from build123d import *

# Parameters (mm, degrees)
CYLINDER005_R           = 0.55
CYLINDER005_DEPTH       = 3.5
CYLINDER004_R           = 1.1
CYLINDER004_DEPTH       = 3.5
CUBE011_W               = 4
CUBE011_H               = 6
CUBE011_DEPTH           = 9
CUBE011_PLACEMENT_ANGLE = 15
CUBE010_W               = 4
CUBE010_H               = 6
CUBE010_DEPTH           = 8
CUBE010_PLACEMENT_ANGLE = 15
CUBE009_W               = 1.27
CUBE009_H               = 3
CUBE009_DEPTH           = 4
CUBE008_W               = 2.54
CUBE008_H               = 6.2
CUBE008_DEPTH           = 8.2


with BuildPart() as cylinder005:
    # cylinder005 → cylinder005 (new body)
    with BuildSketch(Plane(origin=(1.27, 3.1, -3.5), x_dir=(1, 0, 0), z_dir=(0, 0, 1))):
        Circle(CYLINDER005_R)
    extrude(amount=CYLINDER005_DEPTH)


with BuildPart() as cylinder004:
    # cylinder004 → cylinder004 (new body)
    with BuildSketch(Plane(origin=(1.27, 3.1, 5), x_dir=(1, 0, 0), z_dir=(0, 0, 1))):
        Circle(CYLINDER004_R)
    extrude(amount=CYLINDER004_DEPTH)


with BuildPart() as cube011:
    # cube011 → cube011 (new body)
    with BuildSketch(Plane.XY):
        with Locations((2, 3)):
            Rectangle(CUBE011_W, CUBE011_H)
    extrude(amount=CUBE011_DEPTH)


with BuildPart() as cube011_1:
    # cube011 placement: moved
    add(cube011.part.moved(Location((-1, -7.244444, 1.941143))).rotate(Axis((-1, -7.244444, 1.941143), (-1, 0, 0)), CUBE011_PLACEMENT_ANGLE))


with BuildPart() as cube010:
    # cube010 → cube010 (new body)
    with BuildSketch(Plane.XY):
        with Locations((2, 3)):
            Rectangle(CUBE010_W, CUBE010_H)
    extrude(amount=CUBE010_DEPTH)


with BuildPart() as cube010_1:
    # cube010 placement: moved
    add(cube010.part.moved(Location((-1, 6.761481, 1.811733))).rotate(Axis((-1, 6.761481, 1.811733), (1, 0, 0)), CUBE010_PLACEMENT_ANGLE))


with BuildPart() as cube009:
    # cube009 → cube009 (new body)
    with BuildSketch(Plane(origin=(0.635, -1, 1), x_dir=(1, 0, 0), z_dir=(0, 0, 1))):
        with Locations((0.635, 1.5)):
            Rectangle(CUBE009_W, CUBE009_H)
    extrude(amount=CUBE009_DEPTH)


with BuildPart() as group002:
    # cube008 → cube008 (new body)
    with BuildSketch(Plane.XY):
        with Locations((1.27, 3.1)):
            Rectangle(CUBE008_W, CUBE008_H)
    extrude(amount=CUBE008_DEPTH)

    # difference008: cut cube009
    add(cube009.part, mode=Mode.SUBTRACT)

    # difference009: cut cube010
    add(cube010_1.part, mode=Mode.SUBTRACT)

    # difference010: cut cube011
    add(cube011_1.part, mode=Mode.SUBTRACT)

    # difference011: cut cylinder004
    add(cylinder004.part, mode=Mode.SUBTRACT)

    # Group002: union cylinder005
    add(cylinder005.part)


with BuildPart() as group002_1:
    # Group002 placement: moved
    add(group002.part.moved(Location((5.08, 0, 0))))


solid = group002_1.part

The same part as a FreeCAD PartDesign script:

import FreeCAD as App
import Part
import Sketcher
Q = App.Units.Quantity

doc = App.newDocument("Part")
body = doc.addObject("PartDesign::Body", "Body")

# Sketch on XY plane
sketch1 = body.newObject("Sketcher::SketchObject", "Sketch")
sketch1.AttachmentSupport = (doc.getObject("XY_Plane"), [""])
sketch1.MapMode = "FlatFace"
sketch1.AttachmentOffset = App.Placement(App.Vector(0, 0, -3.5), App.Rotation())
sketch1.addGeometry(Part.Circle(App.Vector(1.3, 3.1, 0), App.Vector(0, 0, 1), 0.6), False)
sketch1.addConstraint(Sketcher.Constraint("Diameter", 0, Q("1.1 mm")))
sketch1.addConstraint(Sketcher.Constraint("DistanceY", -1, 1, 0, 3, Q("3.1 mm")))
sketch1.addConstraint(Sketcher.Constraint("DistanceX", -1, 1, 0, 3, Q("1.27 mm")))
pad1 = body.newObject("PartDesign::Pad", "Pad")
pad1.Profile = sketch1
pad1.Length = 3.5
body2 = doc.addObject("PartDesign::Body", "Body001")

# Sketch on XY plane
sketch2 = body2.newObject("Sketcher::SketchObject", "Sketch001")
sketch2.AttachmentSupport = (doc.getObject("XY_Plane001"), [""])
sketch2.MapMode = "FlatFace"
sketch2.AttachmentOffset = App.Placement(App.Vector(0, 0, 5), App.Rotation())
sketch2.addGeometry(Part.Circle(App.Vector(1.3, 3.1, 0), App.Vector(0, 0, 1), 1.1), False)
sketch2.addConstraint(Sketcher.Constraint("Diameter", 0, Q("2.2 mm")))
sketch2.addConstraint(Sketcher.Constraint("DistanceY", -1, 1, 0, 3, Q("3.1 mm")))
sketch2.addConstraint(Sketcher.Constraint("DistanceX", -1, 1, 0, 3, Q("1.27 mm")))
pad2 = body2.newObject("PartDesign::Pad", "Pad001")
pad2.Profile = sketch2
pad2.Length = 3.5
body3 = doc.addObject("PartDesign::Body", "Body002")

# Sketch on XY plane
sketch3 = body3.newObject("Sketcher::SketchObject", "Sketch002")
sketch3.AttachmentSupport = (doc.getObject("XY_Plane002"), [""])
sketch3.MapMode = "FlatFace"
sketch3.addGeometry(Part.LineSegment(App.Vector(0, 6, 0), App.Vector(0, 0, 0)), False)
sketch3.addGeometry(Part.LineSegment(App.Vector(0, 0, 0), App.Vector(4, 0, 0)), False)
sketch3.addGeometry(Part.LineSegment(App.Vector(4, 0, 0), App.Vector(4, 6, 0)), False)
sketch3.addGeometry(Part.LineSegment(App.Vector(4, 6, 0), App.Vector(0, 6, 0)), False)
sketch3.addConstraint(Sketcher.Constraint("Coincident", 0, 2, 1, 1))
sketch3.addConstraint(Sketcher.Constraint("Coincident", 1, 2, 2, 1))
sketch3.addConstraint(Sketcher.Constraint("Coincident", 2, 2, 3, 1))
sketch3.addConstraint(Sketcher.Constraint("Coincident", 3, 2, 0, 1))
sketch3.addConstraint(Sketcher.Constraint("Vertical", 0))
sketch3.addConstraint(Sketcher.Constraint("Horizontal", 1))
sketch3.addConstraint(Sketcher.Constraint("Vertical", 2))
sketch3.addConstraint(Sketcher.Constraint("Horizontal", 3))
sketch3.addConstraint(Sketcher.Constraint("Coincident", 0, 2, -1, 1))
sketch3.addConstraint(Sketcher.Constraint("DistanceX", 1, 1, 1, 2, Q("4 mm")))
sketch3.addConstraint(Sketcher.Constraint("DistanceY", 0, 2, 0, 1, Q("6 mm")))
pad3 = body3.newObject("PartDesign::Pad", "Pad002")
pad3.Profile = sketch3
pad3.Length = 9
body4 = doc.addObject("PartDesign::Body", "Body003")
doc.recompute()

body3.Placement = App.Placement(App.Vector(-1, -7.244444, 1.941143), App.Rotation(App.Vector(-1, 0, 0), 15))
boolean = body4.newObject("PartDesign::Boolean", "Boolean")
boolean.Type = "Fuse"
boolean.addObjects([body3])
body5 = doc.addObject("PartDesign::Body", "Body004")

# Sketch on XY plane
sketch4 = body5.newObject("Sketcher::SketchObject", "Sketch003")
sketch4.AttachmentSupport = (doc.getObject("XY_Plane004"), [""])
sketch4.MapMode = "FlatFace"
sketch4.addGeometry(Part.LineSegment(App.Vector(0, 6, 0), App.Vector(0, 0, 0)), False)
sketch4.addGeometry(Part.LineSegment(App.Vector(0, 0, 0), App.Vector(4, 0, 0)), False)
sketch4.addGeometry(Part.LineSegment(App.Vector(4, 0, 0), App.Vector(4, 6, 0)), False)
sketch4.addGeometry(Part.LineSegment(App.Vector(4, 6, 0), App.Vector(0, 6, 0)), False)
sketch4.addConstraint(Sketcher.Constraint("Coincident", 0, 2, 1, 1))
sketch4.addConstraint(Sketcher.Constraint("Coincident", 1, 2, 2, 1))
sketch4.addConstraint(Sketcher.Constraint("Coincident", 2, 2, 3, 1))
sketch4.addConstraint(Sketcher.Constraint("Coincident", 3, 2, 0, 1))
sketch4.addConstraint(Sketcher.Constraint("Vertical", 0))
sketch4.addConstraint(Sketcher.Constraint("Horizontal", 1))
sketch4.addConstraint(Sketcher.Constraint("Vertical", 2))
sketch4.addConstraint(Sketcher.Constraint("Horizontal", 3))
sketch4.addConstraint(Sketcher.Constraint("Coincident", 0, 2, -1, 1))
sketch4.addConstraint(Sketcher.Constraint("DistanceX", 1, 1, 1, 2, Q("4 mm")))
sketch4.addConstraint(Sketcher.Constraint("DistanceY", 0, 2, 0, 1, Q("6 mm")))
pad4 = body5.newObject("PartDesign::Pad", "Pad003")
pad4.Profile = sketch4
pad4.Length = 8
body6 = doc.addObject("PartDesign::Body", "Body005")
doc.recompute()

body5.Placement = App.Placement(App.Vector(-1, 6.761481, 1.811733), App.Rotation(App.Vector(1, 0, 0), 15))
boolean2 = body6.newObject("PartDesign::Boolean", "Boolean001")
boolean2.Type = "Fuse"
boolean2.addObjects([body5])
body7 = doc.addObject("PartDesign::Body", "Body006")

# Sketch on XY plane
sketch5 = body7.newObject("Sketcher::SketchObject", "Sketch004")
sketch5.AttachmentSupport = (doc.getObject("XY_Plane006"), [""])
sketch5.MapMode = "FlatFace"
sketch5.AttachmentOffset = App.Placement(App.Vector(0, 0, 1), App.Rotation())
sketch5.addGeometry(Part.LineSegment(App.Vector(0.6, 2, 0), App.Vector(0.6, -1, 0)), False)
sketch5.addGeometry(Part.LineSegment(App.Vector(0.6, -1, 0), App.Vector(1.9, -1, 0)), False)
sketch5.addGeometry(Part.LineSegment(App.Vector(1.9, -1, 0), App.Vector(1.9, 2, 0)), False)
sketch5.addGeometry(Part.LineSegment(App.Vector(1.9, 2, 0), App.Vector(0.6, 2, 0)), False)
sketch5.addConstraint(Sketcher.Constraint("Coincident", 0, 2, 1, 1))
sketch5.addConstraint(Sketcher.Constraint("Coincident", 1, 2, 2, 1))
sketch5.addConstraint(Sketcher.Constraint("Coincident", 2, 2, 3, 1))
sketch5.addConstraint(Sketcher.Constraint("Coincident", 3, 2, 0, 1))
sketch5.addConstraint(Sketcher.Constraint("Vertical", 0))
sketch5.addConstraint(Sketcher.Constraint("Horizontal", 1))
sketch5.addConstraint(Sketcher.Constraint("Vertical", 2))
sketch5.addConstraint(Sketcher.Constraint("Horizontal", 3))
sketch5.addConstraint(Sketcher.Constraint("DistanceY", 0, 2, 0, 1, Q("3 mm")))
sketch5.addConstraint(Sketcher.Constraint("DistanceY", 0, 2, -1, 1, Q("1 mm")))
sketch5.addConstraint(Sketcher.Constraint("DistanceX", 1, 1, 1, 2, Q("1.27 mm")))
sketch5.addConstraint(Sketcher.Constraint("DistanceX", -1, 1, 0, 2, Q("0.635 mm")))
pad5 = body7.newObject("PartDesign::Pad", "Pad004")
pad5.Profile = sketch5
pad5.Length = 4
body8 = doc.addObject("PartDesign::Body", "Body007")

# Sketch on XY plane
sketch6 = body8.newObject("Sketcher::SketchObject", "Sketch005")
sketch6.AttachmentSupport = (doc.getObject("XY_Plane007"), [""])
sketch6.MapMode = "FlatFace"
sketch6.addGeometry(Part.LineSegment(App.Vector(0, 6.2, 0), App.Vector(0, 0, 0)), False)
sketch6.addGeometry(Part.LineSegment(App.Vector(0, 0, 0), App.Vector(2.5, 0, 0)), False)
sketch6.addGeometry(Part.LineSegment(App.Vector(2.5, 0, 0), App.Vector(2.5, 6.2, 0)), False)
sketch6.addGeometry(Part.LineSegment(App.Vector(2.5, 6.2, 0), App.Vector(0, 6.2, 0)), False)
sketch6.addConstraint(Sketcher.Constraint("Coincident", 0, 2, 1, 1))
sketch6.addConstraint(Sketcher.Constraint("Coincident", 1, 2, 2, 1))
sketch6.addConstraint(Sketcher.Constraint("Coincident", 2, 2, 3, 1))
sketch6.addConstraint(Sketcher.Constraint("Coincident", 3, 2, 0, 1))
sketch6.addConstraint(Sketcher.Constraint("Vertical", 0))
sketch6.addConstraint(Sketcher.Constraint("Horizontal", 1))
sketch6.addConstraint(Sketcher.Constraint("Vertical", 2))
sketch6.addConstraint(Sketcher.Constraint("Horizontal", 3))
sketch6.addConstraint(Sketcher.Constraint("Coincident", 0, 2, -1, 1))
sketch6.addConstraint(Sketcher.Constraint("DistanceY", 0, 2, 0, 1, Q("6.2 mm")))
sketch6.addConstraint(Sketcher.Constraint("DistanceX", 1, 1, 1, 2, Q("2.54 mm")))
pad6 = body8.newObject("PartDesign::Pad", "Pad005")
pad6.Profile = sketch6
pad6.Length = 8.2
doc.recompute()

boolean3 = body8.newObject("PartDesign::Boolean", "Boolean002")
boolean3.Type = "Cut"
boolean3.addObjects([body7])
doc.recompute()

boolean4 = body8.newObject("PartDesign::Boolean", "Boolean003")
boolean4.Type = "Cut"
boolean4.addObjects([body6])
doc.recompute()

boolean5 = body8.newObject("PartDesign::Boolean", "Boolean004")
boolean5.Type = "Cut"
boolean5.addObjects([body4])
doc.recompute()

boolean6 = body8.newObject("PartDesign::Boolean", "Boolean005")
boolean6.Type = "Cut"
boolean6.addObjects([body2])
doc.recompute()

boolean7 = body8.newObject("PartDesign::Boolean", "Boolean006")
boolean7.Type = "Fuse"
boolean7.addObjects([body])
body9 = doc.addObject("PartDesign::Body", "Body008")
doc.recompute()

body8.Placement = App.Placement(App.Vector(5.08, 0, 0), App.Rotation(App.Vector(0, 0, 1), 0))
boolean8 = body9.newObject("PartDesign::Boolean", "Boolean007")
boolean8.Type = "Fuse"
boolean8.addObjects([body8])

doc.recompute()
